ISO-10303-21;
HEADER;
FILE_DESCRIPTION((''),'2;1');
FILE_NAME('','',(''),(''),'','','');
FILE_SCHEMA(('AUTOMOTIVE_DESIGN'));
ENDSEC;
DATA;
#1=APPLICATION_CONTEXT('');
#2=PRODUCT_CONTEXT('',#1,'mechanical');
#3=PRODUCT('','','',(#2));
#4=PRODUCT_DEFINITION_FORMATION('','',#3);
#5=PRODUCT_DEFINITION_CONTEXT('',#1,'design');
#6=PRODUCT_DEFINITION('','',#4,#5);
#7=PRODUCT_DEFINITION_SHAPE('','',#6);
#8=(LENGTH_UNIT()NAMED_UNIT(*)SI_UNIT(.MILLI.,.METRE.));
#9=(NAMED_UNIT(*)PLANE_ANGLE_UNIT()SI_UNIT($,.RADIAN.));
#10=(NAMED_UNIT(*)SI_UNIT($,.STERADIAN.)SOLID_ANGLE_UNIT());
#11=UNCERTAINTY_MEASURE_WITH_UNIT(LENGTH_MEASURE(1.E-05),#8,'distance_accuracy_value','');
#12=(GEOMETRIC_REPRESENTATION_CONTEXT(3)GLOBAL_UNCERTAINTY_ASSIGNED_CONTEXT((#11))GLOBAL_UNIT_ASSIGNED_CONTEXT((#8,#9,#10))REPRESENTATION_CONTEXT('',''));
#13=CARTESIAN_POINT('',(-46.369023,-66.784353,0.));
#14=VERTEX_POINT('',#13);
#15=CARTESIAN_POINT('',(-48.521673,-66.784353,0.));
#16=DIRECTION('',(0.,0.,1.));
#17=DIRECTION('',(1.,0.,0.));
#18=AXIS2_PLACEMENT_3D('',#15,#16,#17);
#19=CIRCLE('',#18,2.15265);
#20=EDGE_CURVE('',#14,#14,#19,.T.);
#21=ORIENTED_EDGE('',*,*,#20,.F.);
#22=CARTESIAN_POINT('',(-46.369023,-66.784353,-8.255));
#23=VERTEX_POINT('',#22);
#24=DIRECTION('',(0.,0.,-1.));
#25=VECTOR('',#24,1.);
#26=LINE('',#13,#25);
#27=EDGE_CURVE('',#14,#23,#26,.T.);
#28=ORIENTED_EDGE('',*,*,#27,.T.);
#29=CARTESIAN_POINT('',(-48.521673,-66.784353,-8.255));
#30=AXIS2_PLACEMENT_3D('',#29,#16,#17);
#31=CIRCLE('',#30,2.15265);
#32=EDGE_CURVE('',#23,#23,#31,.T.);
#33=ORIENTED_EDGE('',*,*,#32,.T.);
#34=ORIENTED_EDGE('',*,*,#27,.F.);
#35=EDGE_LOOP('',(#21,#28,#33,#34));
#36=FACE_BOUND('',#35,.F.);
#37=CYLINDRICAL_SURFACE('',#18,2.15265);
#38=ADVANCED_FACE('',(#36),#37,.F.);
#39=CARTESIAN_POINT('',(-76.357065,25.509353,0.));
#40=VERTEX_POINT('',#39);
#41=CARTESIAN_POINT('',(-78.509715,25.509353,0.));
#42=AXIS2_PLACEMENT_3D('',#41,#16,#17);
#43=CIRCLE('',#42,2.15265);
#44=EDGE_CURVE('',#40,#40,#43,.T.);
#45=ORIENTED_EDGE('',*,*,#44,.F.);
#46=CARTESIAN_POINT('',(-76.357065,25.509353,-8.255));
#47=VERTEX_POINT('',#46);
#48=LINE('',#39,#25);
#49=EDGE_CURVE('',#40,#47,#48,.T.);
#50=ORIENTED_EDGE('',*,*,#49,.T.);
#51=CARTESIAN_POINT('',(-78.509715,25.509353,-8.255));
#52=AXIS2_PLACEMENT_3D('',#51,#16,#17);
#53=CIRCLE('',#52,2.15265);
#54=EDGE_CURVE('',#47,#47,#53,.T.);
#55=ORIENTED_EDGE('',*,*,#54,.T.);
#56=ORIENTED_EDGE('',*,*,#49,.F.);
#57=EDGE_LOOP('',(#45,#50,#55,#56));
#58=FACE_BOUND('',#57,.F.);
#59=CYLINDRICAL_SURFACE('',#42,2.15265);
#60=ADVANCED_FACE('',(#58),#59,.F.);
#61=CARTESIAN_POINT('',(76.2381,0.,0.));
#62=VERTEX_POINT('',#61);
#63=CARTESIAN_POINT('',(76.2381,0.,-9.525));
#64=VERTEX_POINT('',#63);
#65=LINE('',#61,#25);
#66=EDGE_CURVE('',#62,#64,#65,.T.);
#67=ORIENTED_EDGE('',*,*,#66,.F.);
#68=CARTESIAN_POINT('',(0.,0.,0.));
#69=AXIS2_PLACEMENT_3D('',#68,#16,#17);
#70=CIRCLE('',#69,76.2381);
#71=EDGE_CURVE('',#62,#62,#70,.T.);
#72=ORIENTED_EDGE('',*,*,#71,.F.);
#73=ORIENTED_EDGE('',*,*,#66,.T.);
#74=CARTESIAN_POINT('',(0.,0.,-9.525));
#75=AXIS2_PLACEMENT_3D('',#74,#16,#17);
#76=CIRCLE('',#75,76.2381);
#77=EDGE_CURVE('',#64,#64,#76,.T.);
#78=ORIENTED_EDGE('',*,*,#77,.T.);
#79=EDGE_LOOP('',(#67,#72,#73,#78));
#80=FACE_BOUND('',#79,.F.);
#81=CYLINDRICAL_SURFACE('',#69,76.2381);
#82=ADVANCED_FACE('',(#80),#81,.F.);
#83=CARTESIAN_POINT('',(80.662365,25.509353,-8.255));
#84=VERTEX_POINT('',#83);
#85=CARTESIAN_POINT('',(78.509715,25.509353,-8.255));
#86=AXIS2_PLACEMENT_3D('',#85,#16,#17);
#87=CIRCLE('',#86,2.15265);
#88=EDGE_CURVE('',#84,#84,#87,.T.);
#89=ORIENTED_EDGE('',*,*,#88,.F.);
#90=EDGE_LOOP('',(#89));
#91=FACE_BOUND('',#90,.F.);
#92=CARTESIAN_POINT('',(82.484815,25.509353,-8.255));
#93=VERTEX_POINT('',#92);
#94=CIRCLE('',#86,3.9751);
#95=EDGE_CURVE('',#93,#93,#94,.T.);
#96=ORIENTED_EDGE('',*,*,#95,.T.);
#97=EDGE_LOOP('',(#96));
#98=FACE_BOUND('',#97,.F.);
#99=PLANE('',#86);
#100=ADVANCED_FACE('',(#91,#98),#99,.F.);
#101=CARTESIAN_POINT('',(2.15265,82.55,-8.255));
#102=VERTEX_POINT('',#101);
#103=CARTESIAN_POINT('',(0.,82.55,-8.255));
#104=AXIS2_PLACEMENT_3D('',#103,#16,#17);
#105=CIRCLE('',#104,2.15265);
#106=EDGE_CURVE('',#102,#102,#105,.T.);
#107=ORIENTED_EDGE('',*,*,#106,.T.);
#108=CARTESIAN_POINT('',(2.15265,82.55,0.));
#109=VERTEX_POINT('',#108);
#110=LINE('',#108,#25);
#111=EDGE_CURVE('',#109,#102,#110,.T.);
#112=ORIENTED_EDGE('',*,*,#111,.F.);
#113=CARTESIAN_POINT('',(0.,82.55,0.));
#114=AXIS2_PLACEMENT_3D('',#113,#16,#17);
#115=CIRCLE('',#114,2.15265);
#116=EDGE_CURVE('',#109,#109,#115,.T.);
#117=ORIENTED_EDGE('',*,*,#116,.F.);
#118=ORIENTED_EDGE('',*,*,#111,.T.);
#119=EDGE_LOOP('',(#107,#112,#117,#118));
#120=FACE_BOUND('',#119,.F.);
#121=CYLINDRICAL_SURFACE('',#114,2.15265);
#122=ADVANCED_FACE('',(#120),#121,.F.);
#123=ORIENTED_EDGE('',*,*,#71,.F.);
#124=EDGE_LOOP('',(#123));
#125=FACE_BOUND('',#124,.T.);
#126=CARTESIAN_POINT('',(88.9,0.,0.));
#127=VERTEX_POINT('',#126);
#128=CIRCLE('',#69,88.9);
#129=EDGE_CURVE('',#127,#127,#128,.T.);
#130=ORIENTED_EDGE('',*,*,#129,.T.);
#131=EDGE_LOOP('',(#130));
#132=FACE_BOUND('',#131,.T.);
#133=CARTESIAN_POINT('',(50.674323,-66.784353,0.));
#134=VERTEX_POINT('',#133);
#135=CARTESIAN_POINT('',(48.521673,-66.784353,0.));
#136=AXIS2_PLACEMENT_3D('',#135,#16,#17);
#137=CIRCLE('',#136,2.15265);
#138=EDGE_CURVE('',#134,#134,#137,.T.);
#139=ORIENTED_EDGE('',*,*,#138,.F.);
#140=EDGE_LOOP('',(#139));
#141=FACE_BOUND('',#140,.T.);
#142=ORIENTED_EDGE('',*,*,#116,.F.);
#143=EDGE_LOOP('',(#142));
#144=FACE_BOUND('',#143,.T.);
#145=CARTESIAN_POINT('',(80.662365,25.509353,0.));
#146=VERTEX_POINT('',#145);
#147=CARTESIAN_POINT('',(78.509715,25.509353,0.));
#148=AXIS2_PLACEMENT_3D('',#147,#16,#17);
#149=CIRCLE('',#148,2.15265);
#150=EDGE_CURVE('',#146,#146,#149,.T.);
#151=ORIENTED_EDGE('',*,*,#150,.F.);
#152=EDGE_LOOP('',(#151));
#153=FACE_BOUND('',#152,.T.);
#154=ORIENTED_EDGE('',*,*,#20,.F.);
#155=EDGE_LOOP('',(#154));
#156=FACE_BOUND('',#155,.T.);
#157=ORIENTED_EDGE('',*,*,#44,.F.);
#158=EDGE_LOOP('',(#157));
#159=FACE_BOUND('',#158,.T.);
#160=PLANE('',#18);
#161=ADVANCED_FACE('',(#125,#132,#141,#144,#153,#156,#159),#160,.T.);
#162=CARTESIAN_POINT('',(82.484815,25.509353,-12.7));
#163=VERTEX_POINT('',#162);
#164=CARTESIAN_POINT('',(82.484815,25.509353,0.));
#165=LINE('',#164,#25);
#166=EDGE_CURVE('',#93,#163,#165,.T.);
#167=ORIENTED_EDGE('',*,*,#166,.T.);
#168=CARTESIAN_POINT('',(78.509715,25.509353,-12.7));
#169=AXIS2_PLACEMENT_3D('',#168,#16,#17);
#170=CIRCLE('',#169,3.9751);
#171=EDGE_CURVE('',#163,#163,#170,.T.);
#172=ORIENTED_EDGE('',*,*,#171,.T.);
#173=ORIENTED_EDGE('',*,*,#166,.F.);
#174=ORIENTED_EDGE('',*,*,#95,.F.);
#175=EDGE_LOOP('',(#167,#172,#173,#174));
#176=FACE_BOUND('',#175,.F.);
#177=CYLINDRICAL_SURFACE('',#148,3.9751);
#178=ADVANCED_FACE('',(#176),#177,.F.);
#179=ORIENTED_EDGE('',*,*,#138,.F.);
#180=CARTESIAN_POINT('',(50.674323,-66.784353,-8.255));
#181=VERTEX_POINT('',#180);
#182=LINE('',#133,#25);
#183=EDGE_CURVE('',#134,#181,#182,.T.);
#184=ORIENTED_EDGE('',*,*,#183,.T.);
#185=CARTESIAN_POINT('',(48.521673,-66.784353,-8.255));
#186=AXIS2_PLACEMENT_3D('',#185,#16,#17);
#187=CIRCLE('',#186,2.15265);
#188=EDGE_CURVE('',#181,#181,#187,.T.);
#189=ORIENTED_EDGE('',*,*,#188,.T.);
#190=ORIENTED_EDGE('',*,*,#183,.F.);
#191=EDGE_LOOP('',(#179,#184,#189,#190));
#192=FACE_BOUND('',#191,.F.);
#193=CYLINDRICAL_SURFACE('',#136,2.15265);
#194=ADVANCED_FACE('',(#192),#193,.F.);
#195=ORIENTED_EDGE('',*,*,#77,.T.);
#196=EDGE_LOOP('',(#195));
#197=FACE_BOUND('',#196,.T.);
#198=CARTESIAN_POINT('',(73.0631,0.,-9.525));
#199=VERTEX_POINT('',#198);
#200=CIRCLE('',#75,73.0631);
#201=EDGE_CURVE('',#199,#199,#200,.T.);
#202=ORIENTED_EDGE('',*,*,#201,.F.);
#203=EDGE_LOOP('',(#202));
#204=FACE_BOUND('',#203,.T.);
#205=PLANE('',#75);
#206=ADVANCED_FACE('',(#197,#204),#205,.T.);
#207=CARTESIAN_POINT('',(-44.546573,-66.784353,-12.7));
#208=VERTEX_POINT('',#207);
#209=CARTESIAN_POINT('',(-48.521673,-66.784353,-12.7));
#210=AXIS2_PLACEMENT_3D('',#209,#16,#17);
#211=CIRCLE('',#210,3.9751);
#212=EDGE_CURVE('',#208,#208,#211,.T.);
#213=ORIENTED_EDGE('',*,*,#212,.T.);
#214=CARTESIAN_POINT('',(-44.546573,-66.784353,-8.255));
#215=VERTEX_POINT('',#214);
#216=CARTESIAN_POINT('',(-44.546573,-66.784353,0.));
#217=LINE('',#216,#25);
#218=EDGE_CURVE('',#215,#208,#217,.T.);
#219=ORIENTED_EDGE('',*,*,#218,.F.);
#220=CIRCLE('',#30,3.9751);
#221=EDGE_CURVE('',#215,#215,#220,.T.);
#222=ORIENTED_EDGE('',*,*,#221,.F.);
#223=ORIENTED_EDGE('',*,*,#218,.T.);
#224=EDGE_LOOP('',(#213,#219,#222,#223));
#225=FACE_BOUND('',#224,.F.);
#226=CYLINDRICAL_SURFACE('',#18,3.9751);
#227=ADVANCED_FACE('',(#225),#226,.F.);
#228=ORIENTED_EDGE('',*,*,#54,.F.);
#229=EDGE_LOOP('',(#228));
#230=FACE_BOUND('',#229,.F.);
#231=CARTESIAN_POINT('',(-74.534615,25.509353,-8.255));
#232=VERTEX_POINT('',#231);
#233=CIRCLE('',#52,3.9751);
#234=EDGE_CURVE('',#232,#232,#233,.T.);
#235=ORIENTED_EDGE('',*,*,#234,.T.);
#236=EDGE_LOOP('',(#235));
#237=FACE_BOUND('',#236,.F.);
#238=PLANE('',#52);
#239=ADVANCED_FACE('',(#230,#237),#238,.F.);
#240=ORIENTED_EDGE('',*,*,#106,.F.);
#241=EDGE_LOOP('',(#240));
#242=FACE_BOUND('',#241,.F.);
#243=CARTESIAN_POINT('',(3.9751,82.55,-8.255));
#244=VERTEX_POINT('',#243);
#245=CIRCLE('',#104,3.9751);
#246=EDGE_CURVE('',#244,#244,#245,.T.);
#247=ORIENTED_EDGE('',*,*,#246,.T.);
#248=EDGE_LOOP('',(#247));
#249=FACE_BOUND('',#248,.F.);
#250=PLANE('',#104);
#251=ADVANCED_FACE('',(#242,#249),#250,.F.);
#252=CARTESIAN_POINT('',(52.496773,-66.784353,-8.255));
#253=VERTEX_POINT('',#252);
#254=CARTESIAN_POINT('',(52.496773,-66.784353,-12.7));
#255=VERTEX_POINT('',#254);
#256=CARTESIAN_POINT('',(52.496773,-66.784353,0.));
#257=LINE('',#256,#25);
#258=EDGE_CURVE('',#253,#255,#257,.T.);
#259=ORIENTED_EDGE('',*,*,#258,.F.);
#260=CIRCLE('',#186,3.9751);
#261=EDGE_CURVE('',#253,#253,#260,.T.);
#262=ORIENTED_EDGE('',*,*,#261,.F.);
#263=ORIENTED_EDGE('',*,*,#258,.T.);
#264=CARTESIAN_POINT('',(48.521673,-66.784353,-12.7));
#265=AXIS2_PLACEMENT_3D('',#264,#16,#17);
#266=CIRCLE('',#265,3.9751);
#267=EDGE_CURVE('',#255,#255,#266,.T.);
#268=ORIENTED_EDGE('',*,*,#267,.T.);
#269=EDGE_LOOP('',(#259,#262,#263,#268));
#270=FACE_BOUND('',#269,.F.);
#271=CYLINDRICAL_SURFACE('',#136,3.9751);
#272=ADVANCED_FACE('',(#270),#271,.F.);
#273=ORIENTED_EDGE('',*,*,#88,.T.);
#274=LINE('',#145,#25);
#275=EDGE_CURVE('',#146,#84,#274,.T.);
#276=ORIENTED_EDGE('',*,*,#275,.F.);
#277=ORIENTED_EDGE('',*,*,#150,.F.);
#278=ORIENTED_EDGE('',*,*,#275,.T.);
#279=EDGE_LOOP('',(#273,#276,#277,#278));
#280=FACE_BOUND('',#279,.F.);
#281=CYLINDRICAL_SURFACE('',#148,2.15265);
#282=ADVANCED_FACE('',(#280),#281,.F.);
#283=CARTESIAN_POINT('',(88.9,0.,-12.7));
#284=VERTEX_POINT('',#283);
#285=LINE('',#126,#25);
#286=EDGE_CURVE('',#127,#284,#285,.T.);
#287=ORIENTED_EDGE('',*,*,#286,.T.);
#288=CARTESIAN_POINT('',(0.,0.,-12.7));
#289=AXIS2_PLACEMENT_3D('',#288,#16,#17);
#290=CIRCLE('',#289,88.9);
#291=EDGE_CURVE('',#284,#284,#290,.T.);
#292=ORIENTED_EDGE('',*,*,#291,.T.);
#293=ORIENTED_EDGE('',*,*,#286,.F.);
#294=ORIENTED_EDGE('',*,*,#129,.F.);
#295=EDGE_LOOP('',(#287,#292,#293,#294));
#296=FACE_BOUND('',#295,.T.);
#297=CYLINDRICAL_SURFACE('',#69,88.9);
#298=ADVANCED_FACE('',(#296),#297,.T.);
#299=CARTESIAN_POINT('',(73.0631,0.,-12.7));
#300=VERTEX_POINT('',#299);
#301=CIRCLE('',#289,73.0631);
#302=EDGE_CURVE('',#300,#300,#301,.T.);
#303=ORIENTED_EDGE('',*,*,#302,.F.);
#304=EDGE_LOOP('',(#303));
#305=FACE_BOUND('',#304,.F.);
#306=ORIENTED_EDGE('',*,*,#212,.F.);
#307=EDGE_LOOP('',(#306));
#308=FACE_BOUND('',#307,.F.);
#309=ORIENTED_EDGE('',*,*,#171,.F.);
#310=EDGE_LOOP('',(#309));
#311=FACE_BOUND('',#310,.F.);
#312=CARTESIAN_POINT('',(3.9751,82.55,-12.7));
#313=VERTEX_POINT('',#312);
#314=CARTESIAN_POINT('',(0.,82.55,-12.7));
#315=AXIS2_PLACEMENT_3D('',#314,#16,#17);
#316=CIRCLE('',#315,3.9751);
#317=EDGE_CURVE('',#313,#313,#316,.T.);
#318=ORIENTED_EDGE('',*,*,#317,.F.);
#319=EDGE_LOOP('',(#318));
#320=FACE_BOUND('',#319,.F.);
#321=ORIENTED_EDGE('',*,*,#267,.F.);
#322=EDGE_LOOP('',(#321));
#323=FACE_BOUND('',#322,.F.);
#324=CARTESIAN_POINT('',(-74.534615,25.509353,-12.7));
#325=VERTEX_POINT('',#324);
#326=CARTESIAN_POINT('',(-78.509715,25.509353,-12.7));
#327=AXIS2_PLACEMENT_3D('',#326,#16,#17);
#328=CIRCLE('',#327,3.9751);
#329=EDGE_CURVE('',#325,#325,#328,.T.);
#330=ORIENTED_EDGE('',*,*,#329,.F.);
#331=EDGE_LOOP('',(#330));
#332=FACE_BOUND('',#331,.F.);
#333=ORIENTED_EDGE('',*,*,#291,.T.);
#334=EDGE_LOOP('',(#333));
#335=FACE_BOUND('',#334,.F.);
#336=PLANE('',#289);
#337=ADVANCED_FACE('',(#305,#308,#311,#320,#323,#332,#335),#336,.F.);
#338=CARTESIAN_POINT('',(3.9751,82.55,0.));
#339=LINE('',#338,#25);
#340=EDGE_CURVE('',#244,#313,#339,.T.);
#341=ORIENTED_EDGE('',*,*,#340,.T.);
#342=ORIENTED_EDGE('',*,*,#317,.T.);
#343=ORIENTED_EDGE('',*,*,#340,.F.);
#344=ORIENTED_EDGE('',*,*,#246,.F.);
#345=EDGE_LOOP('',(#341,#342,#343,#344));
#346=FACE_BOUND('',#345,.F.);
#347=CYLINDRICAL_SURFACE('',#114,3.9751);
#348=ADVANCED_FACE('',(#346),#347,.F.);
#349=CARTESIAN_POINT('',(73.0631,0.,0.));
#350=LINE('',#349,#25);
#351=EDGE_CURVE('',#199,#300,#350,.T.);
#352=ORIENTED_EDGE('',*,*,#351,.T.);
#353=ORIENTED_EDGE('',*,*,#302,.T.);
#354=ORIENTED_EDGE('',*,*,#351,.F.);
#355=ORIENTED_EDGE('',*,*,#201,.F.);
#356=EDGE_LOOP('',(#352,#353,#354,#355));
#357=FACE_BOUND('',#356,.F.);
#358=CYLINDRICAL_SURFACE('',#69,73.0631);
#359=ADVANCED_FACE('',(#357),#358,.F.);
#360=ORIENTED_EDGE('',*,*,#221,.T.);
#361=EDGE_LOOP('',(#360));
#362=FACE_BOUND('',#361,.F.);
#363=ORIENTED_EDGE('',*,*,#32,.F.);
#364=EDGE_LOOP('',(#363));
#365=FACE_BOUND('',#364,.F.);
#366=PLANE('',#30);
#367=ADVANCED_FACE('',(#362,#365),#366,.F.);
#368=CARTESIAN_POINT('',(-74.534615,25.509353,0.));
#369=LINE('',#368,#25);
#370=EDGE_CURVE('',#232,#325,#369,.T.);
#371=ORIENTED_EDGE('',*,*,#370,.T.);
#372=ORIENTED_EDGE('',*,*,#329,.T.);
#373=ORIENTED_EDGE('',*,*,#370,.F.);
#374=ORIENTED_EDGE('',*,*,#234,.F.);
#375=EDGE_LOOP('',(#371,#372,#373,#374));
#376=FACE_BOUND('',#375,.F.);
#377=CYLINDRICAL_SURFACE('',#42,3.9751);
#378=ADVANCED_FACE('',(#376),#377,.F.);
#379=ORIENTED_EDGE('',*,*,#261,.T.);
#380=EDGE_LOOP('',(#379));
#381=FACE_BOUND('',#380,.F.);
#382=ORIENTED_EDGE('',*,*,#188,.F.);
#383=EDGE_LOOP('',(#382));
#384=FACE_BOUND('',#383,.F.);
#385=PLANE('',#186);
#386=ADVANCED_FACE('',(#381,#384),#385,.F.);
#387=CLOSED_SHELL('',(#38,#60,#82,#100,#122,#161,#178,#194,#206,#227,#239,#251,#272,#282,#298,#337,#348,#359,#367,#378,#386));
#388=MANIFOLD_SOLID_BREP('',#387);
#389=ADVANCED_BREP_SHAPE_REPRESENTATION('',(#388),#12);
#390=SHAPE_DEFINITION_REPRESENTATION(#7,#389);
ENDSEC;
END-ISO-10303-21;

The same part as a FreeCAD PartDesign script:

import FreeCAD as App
import Part
import Sketcher

V = App.Vector
Q = App.Units.Quantity

doc = App.newDocument("Part")
body = doc.addObject("PartDesign::Body", "Body")

# Sketch on XY plane
sketch1 = body.newObject("Sketcher::SketchObject", "Sketch")
sketch1.AttachmentSupport = (doc.getObject("XY_Plane"), [""])
sketch1.MapMode = "FlatFace"
sketch1.addGeometry([
    Part.Circle(V(0, 0, 0), V(0, 0, 1), 88.9),  # 0
    Part.Circle(V(-48.5, -66.8, 0), V(0, 0, 1), 4),  # 1
    Part.Circle(V(0, 0, 0), V(0, 0, 1), 73.1),  # 2
    Part.Circle(V(48.5, -66.8, 0), V(0, 0, 1), 4),  # 3
    Part.Circle(V(-78.5, 25.5, 0), V(0, 0, 1), 4),  # 4
    Part.Circle(V(0, 82.5, 0), V(0, 0, 1), 4),  # 5
    Part.Circle(V(78.5, 25.5, 0), V(0, 0, 1), 4),  # 6
], False)
sketch1.addConstraint([
    Sketcher.Constraint("Coincident", 0, 3, -1, 1),
    Sketcher.Constraint("Coincident", 2, 3, -1, 1),
    Sketcher.Constraint("Equal", 1, 3),
    Sketcher.Constraint("Equal", 3, 4),
    Sketcher.Constraint("Equal", 4, 5),
    Sketcher.Constraint("Equal", 5, 6),
    Sketcher.Constraint("Symmetric", 1, 3, 3, 3, -2),
    Sketcher.Constraint("Symmetric", 4, 3, 6, 3, -2),
    Sketcher.Constraint("PointOnObject", 5, 3, -2),
    Sketcher.Constraint("Diameter", 0, Q("7 in")),
    Sketcher.Constraint("Diameter", 1, Q("0.313 in")),
    Sketcher.Constraint("Diameter", 2, Q("5.753 in")),
    Sketcher.Constraint("DistanceY", -1, 1, 5, 3, Q("3.25 in")),
    Sketcher.Constraint("DistanceX", 4, 3, 1, 3, Q("29.988042 mm")),
    Sketcher.Constraint("DistanceX", 4, 3, 6, 3, Q("157.01943 mm")),
    Sketcher.Constraint("DistanceY", 1, 3, -1, 1, Q("66.784353 mm")),
    Sketcher.Constraint("DistanceY", -1, 1, 4, 3, Q("25.509353 mm")),
])
pad1 = body.newObject("PartDesign::Pad", "Pad")
pad1.Profile = sketch1
pad1.Length = Q("0.5 in")
pad1.Reversed = True

# Sketch on XY plane
sketch2 = body.newObject("Sketcher::SketchObject", "Sketch001")
sketch2.AttachmentSupport = (doc.getObject("XY_Plane"), [""])
sketch2.MapMode = "FlatFace"
sketch2.addGeometry([
    Part.Circle(V(0, 0, 0), V(0, 0, 1), 76),
    Part.Circle(V(0, 0, 0), V(0, 0, 1), 73),
], False)
sketch2.addConstraint([
    Sketcher.Constraint("Coincident", 0, 3, -1, 1),
    Sketcher.Constraint("Coincident", 1, 3, -1, 1),
    Sketcher.Constraint("Diameter", 0, Q("6.003 in")),
    Sketcher.Constraint("Diameter", 1, Q("5.753 in")),
])
pocket1 = body.newObject("PartDesign::Pocket", "Pocket")
pocket1.Profile = sketch2
pocket1.Length = Q("0.375 in")

# Sketch on XY plane
sketch3 = body.newObject("Sketcher::SketchObject", "Sketch002")
sketch3.AttachmentSupport = (doc.getObject("XY_Plane"), [""])
sketch3.MapMode = "FlatFace"
sketch3.addGeometry([
    Part.Circle(V(-48.5, -66.8, 0), V(0, 0, 1), 4),  # 0
    Part.Circle(V(-48.5, -66.8, 0), V(0, 0, 1), 2.2),  # 1
    Part.Circle(V(48.5, -66.8, 0), V(0, 0, 1), 4),  # 2
    Part.Circle(V(48.5, -66.8, 0), V(0, 0, 1), 2.2),  # 3
    Part.Circle(V(78.5, 25.5, 0), V(0, 0, 1), 4),  # 4
    Part.Circle(V(78.5, 25.5, 0), V(0, 0, 1), 2.2),  # 5
    Part.Circle(V(0, 82.5, 0), V(0, 0, 1), 4),  # 6
    Part.Circle(V(0, 82.5, 0), V(0, 0, 1), 2.2),  # 7
    Part.Circle(V(-78.5, 25.5, 0), V(0, 0, 1), 4),  # 8
    Part.Circle(V(-78.5, 25.5, 0), V(0, 0, 1), 2.2),  # 9
], False)
sketch3.addConstraint([
    Sketcher.Constraint("Coincident", 1, 3, 0, 3),
    Sketcher.Constraint("Coincident", 3, 3, 2, 3),
    Sketcher.Constraint("Coincident", 5, 3, 4, 3),
    Sketcher.Constraint("Coincident", 7, 3, 6, 3),
    Sketcher.Constraint("Coincident", 9, 3, 8, 3),
    Sketcher.Constraint("Equal", 0, 2),
    Sketcher.Constraint("Equal", 1, 3),
    Sketcher.Constraint("Equal", 2, 4),
    Sketcher.Constraint("Equal", 3, 5),
    Sketcher.Constraint("Equal", 4, 6),
    Sketcher.Constraint("Equal", 5, 7),
    Sketcher.Constraint("Equal", 6, 8),
    Sketcher.Constraint("Equal", 7, 9),
    Sketcher.Constraint("Symmetric", 0, 3, 2, 3, -2),
    Sketcher.Constraint("Symmetric", 4, 3, 8, 3, -2),
    Sketcher.Constraint("PointOnObject", 6, 3, -2),
    Sketcher.Constraint("Diameter", 0, Q("0.313 in")),
    Sketcher.Constraint("Diameter", 1, Q("0.1695 in")),
    Sketcher.Constraint("DistanceY", -1, 1, 6, 3, Q("3.25 in")),
    Sketcher.Constraint("DistanceX", 2, 3, 4, 3, Q("29.988042 mm")),
    Sketcher.Constraint("DistanceX", 8, 3, 4, 3, Q("157.01943 mm")),
    Sketcher.Constraint("DistanceY", 0, 3, -1, 1, Q("66.784353 mm")),
    Sketcher.Constraint("DistanceY", -1, 1, 4, 3, Q("25.509353 mm")),
])
pad2 = body.newObject("PartDesign::Pad", "Pad001")
pad2.Profile = sketch3
pad2.Length = Q("0.325 in")
pad2.Reversed = True

doc.recompute()
